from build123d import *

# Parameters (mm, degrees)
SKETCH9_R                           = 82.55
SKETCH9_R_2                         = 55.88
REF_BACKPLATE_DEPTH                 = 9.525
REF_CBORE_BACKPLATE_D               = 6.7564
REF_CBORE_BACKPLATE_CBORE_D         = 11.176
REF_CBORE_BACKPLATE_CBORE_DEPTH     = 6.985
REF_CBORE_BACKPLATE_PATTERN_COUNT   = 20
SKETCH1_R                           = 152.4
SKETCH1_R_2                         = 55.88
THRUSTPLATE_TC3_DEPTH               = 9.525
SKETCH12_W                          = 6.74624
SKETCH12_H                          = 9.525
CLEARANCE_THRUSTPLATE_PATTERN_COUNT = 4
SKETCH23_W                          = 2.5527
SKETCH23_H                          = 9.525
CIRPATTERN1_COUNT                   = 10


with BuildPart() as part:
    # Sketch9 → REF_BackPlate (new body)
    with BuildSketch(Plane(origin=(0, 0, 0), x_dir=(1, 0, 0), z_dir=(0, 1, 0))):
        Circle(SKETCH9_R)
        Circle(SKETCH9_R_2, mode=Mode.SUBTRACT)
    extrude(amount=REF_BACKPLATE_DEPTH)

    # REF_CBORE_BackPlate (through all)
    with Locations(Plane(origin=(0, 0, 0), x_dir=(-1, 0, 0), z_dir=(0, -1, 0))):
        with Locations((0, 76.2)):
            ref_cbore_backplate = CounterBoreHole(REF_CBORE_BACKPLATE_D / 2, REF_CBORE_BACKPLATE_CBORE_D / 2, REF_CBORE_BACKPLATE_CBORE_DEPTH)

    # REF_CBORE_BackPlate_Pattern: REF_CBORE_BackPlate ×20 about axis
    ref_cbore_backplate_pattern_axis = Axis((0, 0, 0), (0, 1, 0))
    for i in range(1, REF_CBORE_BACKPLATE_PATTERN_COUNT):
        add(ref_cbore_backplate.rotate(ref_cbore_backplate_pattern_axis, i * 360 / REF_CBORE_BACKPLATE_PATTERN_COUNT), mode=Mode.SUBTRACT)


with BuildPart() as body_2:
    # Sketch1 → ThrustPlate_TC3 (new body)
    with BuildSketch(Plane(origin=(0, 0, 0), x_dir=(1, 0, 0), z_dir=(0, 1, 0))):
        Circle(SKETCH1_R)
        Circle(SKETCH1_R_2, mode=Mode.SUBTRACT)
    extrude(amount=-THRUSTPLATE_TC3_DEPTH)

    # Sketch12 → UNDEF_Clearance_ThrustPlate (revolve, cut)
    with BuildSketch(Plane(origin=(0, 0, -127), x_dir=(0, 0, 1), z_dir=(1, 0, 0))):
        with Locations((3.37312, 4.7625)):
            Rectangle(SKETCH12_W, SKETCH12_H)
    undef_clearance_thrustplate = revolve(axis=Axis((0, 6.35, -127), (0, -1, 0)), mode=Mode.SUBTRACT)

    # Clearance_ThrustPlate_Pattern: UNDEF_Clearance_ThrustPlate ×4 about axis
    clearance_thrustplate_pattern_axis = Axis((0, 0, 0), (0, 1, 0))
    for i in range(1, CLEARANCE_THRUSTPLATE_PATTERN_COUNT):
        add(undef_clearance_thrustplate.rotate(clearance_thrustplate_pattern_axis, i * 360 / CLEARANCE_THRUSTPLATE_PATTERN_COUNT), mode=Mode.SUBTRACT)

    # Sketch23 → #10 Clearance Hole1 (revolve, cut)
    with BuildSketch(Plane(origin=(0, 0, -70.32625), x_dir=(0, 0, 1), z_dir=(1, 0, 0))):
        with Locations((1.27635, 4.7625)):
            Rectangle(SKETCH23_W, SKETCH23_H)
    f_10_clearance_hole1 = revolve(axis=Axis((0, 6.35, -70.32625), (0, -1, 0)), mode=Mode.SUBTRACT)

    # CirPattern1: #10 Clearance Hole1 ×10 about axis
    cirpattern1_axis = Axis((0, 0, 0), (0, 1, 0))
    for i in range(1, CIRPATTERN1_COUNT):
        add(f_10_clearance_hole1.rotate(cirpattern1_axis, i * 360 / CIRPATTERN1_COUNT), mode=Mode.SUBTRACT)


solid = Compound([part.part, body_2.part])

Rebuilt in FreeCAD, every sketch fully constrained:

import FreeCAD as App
import Part
import Sketcher
Q = App.Units.Quantity


def add_polygon(sketch, points):
    """Adds a closed chain of lines whose ends are joined by coincident constraints."""
    first, n = sketch.GeometryCount, len(points)
    for a, b in zip(points, points[1:] + points[:1]):
        sketch.addGeometry(Part.LineSegment(App.Vector(*a, 0), App.Vector(*b, 0)), False)
    for i in range(n):
        sketch.addConstraint(Sketcher.Constraint("Coincident", first + i, 2, first + (i + 1) % n, 1))

doc = App.newDocument("Part")
body = doc.addObject("PartDesign::Body", "Body")

# Sketch on XZ plane
sketch1 = body.newObject("Sketcher::SketchObject", "Sketch")
sketch1.AttachmentSupport = (doc.getObject("XZ_Plane"), [""])
sketch1.MapMode = "FlatFace"
sketch1.addGeometry(Part.Circle(App.Vector(0, 0, 0), App.Vector(0, 0, 1), 83), False)
sketch1.addGeometry(Part.Circle(App.Vector(0, 0, 0), App.Vector(0, 0, 1), 56), False)
sketch1.addConstraint(Sketcher.Constraint("Coincident", 0, 3, -1, 1))
sketch1.addConstraint(Sketcher.Constraint("Coincident", 1, 3, -1, 1))
sketch1.addConstraint(Sketcher.Constraint("Diameter", 0, Q("6.5 in")))
sketch1.addConstraint(Sketcher.Constraint("Diameter", 1, Q("4.4 in")))
pad1 = body.newObject("PartDesign::Pad", "Pad")
pad1.Profile = sketch1
pad1.Length = Q("0.375 in")
pad1.Reversed = True

# Sketch on XZ plane
sketch2 = body.newObject("Sketcher::SketchObject", "Sketch001")
sketch2.AttachmentSupport = (doc.getObject("XZ_Plane"), [""])
sketch2.MapMode = "FlatFace"
sketch2.addGeometry(Part.Circle(App.Vector(0, -76.2, 0), App.Vector(0, 0, 1), 3.4), False)
sketch2.addConstraint(Sketcher.Constraint("PointOnObject", 0, 3, -2))
sketch2.addConstraint(Sketcher.Constraint("Diameter", 0, Q("0.266 in")))
sketch2.addConstraint(Sketcher.Constraint("DistanceY", 0, 3, -1, 1, Q("3 in")))
doc.recompute()
hole = body.newObject("PartDesign::Hole", "Hole")
hole.Profile = sketch2
hole.ThreadType = "None"
hole.Diameter = Q("0.266 in")
hole.DepthType = "ThroughAll"
hole.HoleCutType = "Counterbore"
hole.HoleCutDiameter = Q("0.44 in")
hole.HoleCutDepth = Q("0.275 in")
doc.recompute()

polarpattern = body.newObject("PartDesign::PolarPattern", "PolarPattern")
polarpattern.Originals = [hole]
polarpattern.Axis = (doc.getObject("Y_Axis"), [""])
polarpattern.Angle = 360
polarpattern.Occurrences = 20
body.Tip = polarpattern
body2 = doc.addObject("PartDesign::Body", "Body001")

# Sketch on XZ plane
sketch3 = body2.newObject("Sketcher::SketchObject", "Sketch002")
sketch3.AttachmentSupport = (doc.getObject("XZ_Plane001"), [""])
sketch3.MapMode = "FlatFace"
sketch3.addGeometry(Part.Circle(App.Vector(0, 0, 0), App.Vector(0, 0, 1), 152), False)
sketch3.addGeometry(Part.Circle(App.Vector(0, 0, 0), App.Vector(0, 0, 1), 56), False)
sketch3.addConstraint(Sketcher.Constraint("Coincident", 0, 3, -1, 1))
sketch3.addConstraint(Sketcher.Constraint("Coincident", 1, 3, -1, 1))
sketch3.addConstraint(Sketcher.Constraint("Diameter", 0, Q("12 in")))
sketch3.addConstraint(Sketcher.Constraint("Diameter", 1, Q("4.4 in")))
pad2 = body2.newObject("PartDesign::Pad", "Pad001")
pad2.Profile = sketch3
pad2.Length = Q("0.375 in")

# Sketch on YZ plane
sketch4 = body2.newObject("Sketcher::SketchObject", "Sketch003")
sketch4.AttachmentSupport = (doc.getObject("YZ_Plane001"), [""])
sketch4.MapMode = "FlatFace"
add_polygon(sketch4, [(-10, -127), (0, -127), (0, -120), (-10, -120)])  # lines 0-3
sketch4.addGeometry(Part.LineSegment(App.Vector(0, -127, 0), App.Vector(-10, -127, 0)), True)  # axis
sketch4.addConstraint(Sketcher.Constraint("Horizontal", 0))
sketch4.addConstraint(Sketcher.Constraint("Vertical", 1))
sketch4.addConstraint(Sketcher.Constraint("Horizontal", 2))
sketch4.addConstraint(Sketcher.Constraint("Vertical", 3))
sketch4.addConstraint(Sketcher.Constraint("Horizontal", 4))
sketch4.addConstraint(Sketcher.Constraint("Coincident", 4, 1, 0, 2))
sketch4.addConstraint(Sketcher.Constraint("PointOnObject", 0, 2, -2))
sketch4.addConstraint(Sketcher.Constraint("Vertical", 2, 2, 4, 2))
sketch4.addConstraint(Sketcher.Constraint("DistanceY", 0, 2, -1, 1, Q("5 in")))
sketch4.addConstraint(Sketcher.Constraint("DistanceX", 0, 1, 0, 2, Q("0.375 in")))
sketch4.addConstraint(Sketcher.Constraint("DistanceY", 1, 1, 1, 2, Q("0.2656 in")))
groove = body2.newObject("PartDesign::Groove", "Groove")
groove.Profile = sketch4
groove.ReferenceAxis = (sketch4, ["Axis0"])
groove.Angle = 360
doc.recompute()

polarpattern2 = body2.newObject("PartDesign::PolarPattern", "PolarPattern001")
polarpattern2.Originals = [groove]
polarpattern2.Axis = (doc.getObject("Y_Axis001"), [""])
polarpattern2.Angle = 360
polarpattern2.Occurrences = 4
body2.Tip = polarpattern2

# Sketch on YZ plane
sketch5 = body2.newObject("Sketcher::SketchObject", "Sketch004")
sketch5.AttachmentSupport = (doc.getObject("YZ_Plane001"), [""])
sketch5.MapMode = "FlatFace"
add_polygon(sketch5, [(-9.5, -70.3), (0, -70.3), (0, -67.8), (-9.5, -67.8)])  # lines 0-3
sketch5.addGeometry(Part.LineSegment(App.Vector(0, -70.3, 0), App.Vector(-9.5, -70.3, 0)), True)  # axis
sketch5.addConstraint(Sketcher.Constraint("Horizontal", 0))
sketch5.addConstraint(Sketcher.Constraint("Vertical", 1))
sketch5.addConstraint(Sketcher.Constraint("Horizontal", 2))
sketch5.addConstraint(Sketcher.Constraint("Vertical", 3))
sketch5.addConstraint(Sketcher.Constraint("Horizontal", 4))
sketch5.addConstraint(Sketcher.Constraint("Coincident", 4, 1, 0, 2))
sketch5.addConstraint(Sketcher.Constraint("PointOnObject", 0, 2, -2))
sketch5.addConstraint(Sketcher.Constraint("Vertical", 2, 2, 4, 2))
sketch5.addConstraint(Sketcher.Constraint("DistanceX", 0, 1, 0, 2, Q("0.375 in")))
sketch5.addConstraint(Sketcher.Constraint("DistanceY", 1, 1, 1, 2, Q("0.1005 in")))
sketch5.addConstraint(Sketcher.Constraint("DistanceY", 0, 2, -1, 1, 70.32625))
groove2 = body2.newObject("PartDesign::Groove", "Groove001")
groove2.Profile = sketch5
groove2.ReferenceAxis = (sketch5, ["Axis0"])
groove2.Angle = 360
doc.recompute()

polarpattern3 = body2.newObject("PartDesign::PolarPattern", "PolarPattern002")
polarpattern3.Originals = [groove2]
polarpattern3.Axis = (doc.getObject("Y_Axis001"), [""])
polarpattern3.Angle = 360
polarpattern3.Occurrences = 10
body2.Tip = polarpattern3

doc.recompute()
